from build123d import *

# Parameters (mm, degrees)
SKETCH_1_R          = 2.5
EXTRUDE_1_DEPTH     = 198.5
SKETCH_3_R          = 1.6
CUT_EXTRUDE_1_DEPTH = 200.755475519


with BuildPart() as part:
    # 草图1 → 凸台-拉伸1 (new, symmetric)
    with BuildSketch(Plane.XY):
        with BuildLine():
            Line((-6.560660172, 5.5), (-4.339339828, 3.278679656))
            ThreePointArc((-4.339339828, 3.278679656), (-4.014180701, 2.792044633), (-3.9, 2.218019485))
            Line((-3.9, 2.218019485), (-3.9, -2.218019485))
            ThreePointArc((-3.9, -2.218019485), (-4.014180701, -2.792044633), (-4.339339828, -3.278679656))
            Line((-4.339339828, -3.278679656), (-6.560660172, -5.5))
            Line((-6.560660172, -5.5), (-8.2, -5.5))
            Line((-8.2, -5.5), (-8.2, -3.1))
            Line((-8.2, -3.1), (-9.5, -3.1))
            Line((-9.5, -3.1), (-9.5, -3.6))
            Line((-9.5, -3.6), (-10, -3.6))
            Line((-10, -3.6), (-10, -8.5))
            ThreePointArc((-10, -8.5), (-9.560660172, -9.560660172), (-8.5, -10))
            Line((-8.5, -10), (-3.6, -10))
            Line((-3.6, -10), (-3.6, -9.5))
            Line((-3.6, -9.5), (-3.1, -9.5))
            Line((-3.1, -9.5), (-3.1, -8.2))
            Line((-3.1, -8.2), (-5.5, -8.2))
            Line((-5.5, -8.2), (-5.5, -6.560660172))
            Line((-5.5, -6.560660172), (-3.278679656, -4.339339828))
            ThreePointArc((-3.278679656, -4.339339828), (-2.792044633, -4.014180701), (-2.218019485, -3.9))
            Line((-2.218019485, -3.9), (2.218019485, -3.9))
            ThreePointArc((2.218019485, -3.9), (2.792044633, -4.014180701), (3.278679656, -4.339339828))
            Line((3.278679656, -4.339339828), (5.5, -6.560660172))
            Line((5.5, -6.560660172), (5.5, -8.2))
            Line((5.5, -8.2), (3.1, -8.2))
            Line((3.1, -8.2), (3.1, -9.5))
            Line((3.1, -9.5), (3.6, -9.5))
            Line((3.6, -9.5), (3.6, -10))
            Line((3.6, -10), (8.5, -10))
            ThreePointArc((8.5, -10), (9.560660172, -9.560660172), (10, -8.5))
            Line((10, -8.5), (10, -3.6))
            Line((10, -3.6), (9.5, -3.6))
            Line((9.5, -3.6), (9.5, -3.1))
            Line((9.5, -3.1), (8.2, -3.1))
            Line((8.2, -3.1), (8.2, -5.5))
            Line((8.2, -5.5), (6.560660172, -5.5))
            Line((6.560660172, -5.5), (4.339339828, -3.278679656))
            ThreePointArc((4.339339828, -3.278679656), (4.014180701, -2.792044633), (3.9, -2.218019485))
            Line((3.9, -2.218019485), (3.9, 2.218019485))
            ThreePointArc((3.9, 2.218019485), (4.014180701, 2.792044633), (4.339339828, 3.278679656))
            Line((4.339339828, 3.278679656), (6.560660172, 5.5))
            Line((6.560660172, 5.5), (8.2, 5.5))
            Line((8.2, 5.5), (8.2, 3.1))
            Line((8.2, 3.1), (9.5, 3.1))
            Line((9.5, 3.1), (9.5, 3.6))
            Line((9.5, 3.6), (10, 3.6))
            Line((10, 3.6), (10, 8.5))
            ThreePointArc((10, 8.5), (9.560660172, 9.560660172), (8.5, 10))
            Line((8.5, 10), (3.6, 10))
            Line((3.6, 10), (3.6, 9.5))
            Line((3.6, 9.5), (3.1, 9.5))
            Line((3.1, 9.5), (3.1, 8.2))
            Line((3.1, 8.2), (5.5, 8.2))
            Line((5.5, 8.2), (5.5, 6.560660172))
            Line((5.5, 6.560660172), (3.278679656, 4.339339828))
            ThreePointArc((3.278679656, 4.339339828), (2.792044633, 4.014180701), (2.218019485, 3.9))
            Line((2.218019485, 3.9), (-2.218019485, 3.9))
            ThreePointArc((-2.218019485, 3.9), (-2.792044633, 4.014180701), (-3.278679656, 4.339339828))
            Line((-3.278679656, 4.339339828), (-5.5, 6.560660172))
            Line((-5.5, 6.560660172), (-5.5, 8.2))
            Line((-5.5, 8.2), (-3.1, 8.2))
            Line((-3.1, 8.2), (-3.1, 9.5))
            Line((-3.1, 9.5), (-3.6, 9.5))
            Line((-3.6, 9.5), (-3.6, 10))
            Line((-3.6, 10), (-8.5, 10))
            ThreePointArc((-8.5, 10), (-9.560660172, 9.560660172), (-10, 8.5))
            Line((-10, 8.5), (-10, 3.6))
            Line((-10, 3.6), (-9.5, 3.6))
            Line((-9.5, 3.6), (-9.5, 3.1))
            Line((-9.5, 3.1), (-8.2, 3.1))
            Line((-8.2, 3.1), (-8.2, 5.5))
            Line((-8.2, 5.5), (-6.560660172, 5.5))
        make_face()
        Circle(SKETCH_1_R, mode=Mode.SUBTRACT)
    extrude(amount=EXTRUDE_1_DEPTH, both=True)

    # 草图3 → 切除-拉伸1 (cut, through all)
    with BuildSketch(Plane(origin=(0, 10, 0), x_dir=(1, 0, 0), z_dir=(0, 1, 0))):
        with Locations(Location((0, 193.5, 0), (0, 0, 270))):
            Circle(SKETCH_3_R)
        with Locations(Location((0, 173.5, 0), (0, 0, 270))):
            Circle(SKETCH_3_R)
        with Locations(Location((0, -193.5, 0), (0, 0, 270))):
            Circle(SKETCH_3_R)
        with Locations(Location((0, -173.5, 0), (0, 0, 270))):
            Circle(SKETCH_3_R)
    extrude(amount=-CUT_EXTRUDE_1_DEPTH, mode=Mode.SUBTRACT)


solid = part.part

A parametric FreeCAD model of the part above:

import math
import FreeCAD as App
import Part
import Sketcher

V = App.Vector

doc = App.newDocument("Part")
body = doc.addObject("PartDesign::Body", "Body")

sketch1 = body.newObject("Sketcher::SketchObject", "Sketch")
sketch1.AttachmentSupport = (doc.getObject("XY_Plane"), [""])
sketch1.MapMode = "FlatFace"
sketch1.addGeometry(Part.LineSegment(V(-6.6, 5.5, 0), V(-4.3, 3.3, 0)), False)
sketch1.addGeometry(Part.ArcOfCircle(Part.Circle(V(-5.4, 2.2, 0), V(0, 0, 1), 1.5), math.radians(0), math.radians(45)), False)
sketch1.addGeometry(Part.LineSegment(V(-3.9, 2.2, 0), V(-3.9, -2.2, 0)), False)
sketch1.addGeometry(Part.ArcOfCircle(Part.Circle(V(-5.4, -2.2, 0), V(0, 0, 1), 1.5), math.radians(-45), math.radians(0)), False)
sketch1.addGeometry(Part.LineSegment(V(-4.3, -3.3, 0), V(-6.6, -5.5, 0)), False)
sketch1.addGeometry(Part.LineSegment(V(-6.6, -5.5, 0), V(-8.2, -5.5, 0)), False)
sketch1.addGeometry(Part.LineSegment(V(-8.2, -5.5, 0), V(-8.2, -3.1, 0)), False)
sketch1.addGeometry(Part.LineSegment(V(-8.2, -3.1, 0), V(-9.5, -3.1, 0)), False)
sketch1.addGeometry(Part.LineSegment(V(-9.5, -3.1, 0), V(-9.5, -3.6, 0)), False)
sketch1.addGeometry(Part.LineSegment(V(-9.5, -3.6, 0), V(-10, -3.6, 0)), False)
sketch1.addGeometry(Part.LineSegment(V(-10, -3.6, 0), V(-10, -8.5, 0)), False)
sketch1.addGeometry(Part.ArcOfCircle(Part.Circle(V(-8.5, -8.5, 0), V(0, 0, 1), 1.5), math.radians(180), math.radians(270)), False)
sketch1.addGeometry(Part.LineSegment(V(-8.5, -10, 0), V(-3.6, -10, 0)), False)
sketch1.addGeometry(Part.LineSegment(V(-3.6, -10, 0), V(-3.6, -9.5, 0)), False)
sketch1.addGeometry(Part.LineSegment(V(-3.6, -9.5, 0), V(-3.1, -9.5, 0)), False)
sketch1.addGeometry(Part.LineSegment(V(-3.1, -9.5, 0), V(-3.1, -8.2, 0)), False)
sketch1.addGeometry(Part.LineSegment(V(-3.1, -8.2, 0), V(-5.5, -8.2, 0)), False)
sketch1.addGeometry(Part.LineSegment(V(-5.5, -8.2, 0), V(-5.5, -6.6, 0)), False)
sketch1.addGeometry(Part.LineSegment(V(-5.5, -6.6, 0), V(-3.3, -4.3, 0)), False)
sketch1.addGeometry(Part.ArcOfCircle(Part.Circle(V(-2.2, -5.4, 0), V(0, 0, 1), 1.5), math.radians(90), math.radians(135)), False)
sketch1.addGeometry(Part.LineSegment(V(-2.2, -3.9, 0), V(2.2, -3.9, 0)), False)
sketch1.addGeometry(Part.ArcOfCircle(Part.Circle(V(2.2, -5.4, 0), V(0, 0, 1), 1.5), math.radians(45), math.radians(90)), False)
sketch1.addGeometry(Part.LineSegment(V(3.3, -4.3, 0), V(5.5, -6.6, 0)), False)
sketch1.addGeometry(Part.LineSegment(V(5.5, -6.6, 0), V(5.5, -8.2, 0)), False)
sketch1.addGeometry(Part.LineSegment(V(5.5, -8.2, 0), V(3.1, -8.2, 0)), False)
sketch1.addGeometry(Part.LineSegment(V(3.1, -8.2, 0), V(3.1, -9.5, 0)), False)
sketch1.addGeometry(Part.LineSegment(V(3.1, -9.5, 0), V(3.6, -9.5, 0)), False)
sketch1.addGeometry(Part.LineSegment(V(3.6, -9.5, 0), V(3.6, -10, 0)), False)
sketch1.addGeometry(Part.LineSegment(V(3.6, -10, 0), V(8.5, -10, 0)), False)
sketch1.addGeometry(Part.ArcOfCircle(Part.Circle(V(8.5, -8.5, 0), V(0, 0, 1), 1.5), math.radians(-90), math.radians(0)), False)
sketch1.addGeometry(Part.LineSegment(V(10, -8.5, 0), V(10, -3.6, 0)), False)
sketch1.addGeometry(Part.LineSegment(V(10, -3.6, 0), V(9.5, -3.6, 0)), False)
sketch1.addGeometry(Part.LineSegment(V(9.5, -3.6, 0), V(9.5, -3.1, 0)), False)
sketch1.addGeometry(Part.LineSegment(V(9.5, -3.1, 0), V(8.2, -3.1, 0)), False)
sketch1.addGeometry(Part.LineSegment(V(8.2, -3.1, 0), V(8.2, -5.5, 0)), False)
sketch1.addGeometry(Part.LineSegment(V(8.2, -5.5, 0), V(6.6, -5.5, 0)), False)
sketch1.addGeometry(Part.LineSegment(V(6.6, -5.5, 0), V(4.3, -3.3, 0)), False)
sketch1.addGeometry(Part.ArcOfCircle(Part.Circle(V(5.4, -2.2, 0), V(0, 0, 1), 1.5), math.radians(180), math.radians(225)), False)
sketch1.addGeometry(Part.LineSegment(V(3.9, -2.2, 0), V(3.9, 2.2, 0)), False)
sketch1.addGeometry(Part.ArcOfCircle(Part.Circle(V(5.4, 2.2, 0), V(0, 0, 1), 1.5), math.radians(135), math.radians(180)), False)
sketch1.addGeometry(Part.LineSegment(V(4.3, 3.3, 0), V(6.6, 5.5, 0)), False)
sketch1.addGeometry(Part.LineSegment(V(6.6, 5.5, 0), V(8.2, 5.5, 0)), False)
sketch1.addGeometry(Part.LineSegment(V(8.2, 5.5, 0), V(8.2, 3.1, 0)), False)
sketch1.addGeometry(Part.LineSegment(V(8.2, 3.1, 0), V(9.5, 3.1, 0)), False)
sketch1.addGeometry(Part.LineSegment(V(9.5, 3.1, 0), V(9.5, 3.6, 0)), False)
sketch1.addGeometry(Part.LineSegment(V(9.5, 3.6, 0), V(10, 3.6, 0)), False)
sketch1.addGeometry(Part.LineSegment(V(10, 3.6, 0), V(10, 8.5, 0)), False)
sketch1.addGeometry(Part.ArcOfCircle(Part.Circle(V(8.5, 8.5, 0), V(0, 0, 1), 1.5), math.radians(0), math.radians(90)), False)
sketch1.addGeometry(Part.LineSegment(V(8.5, 10, 0), V(3.6, 10, 0)), False)
sketch1.addGeometry(Part.LineSegment(V(3.6, 10, 0), V(3.6, 9.5, 0)), False)
sketch1.addGeometry(Part.LineSegment(V(3.6, 9.5, 0), V(3.1, 9.5, 0)), False)
sketch1.addGeometry(Part.LineSegment(V(3.1, 9.5, 0), V(3.1, 8.2, 0)), False)
sketch1.addGeometry(Part.LineSegment(V(3.1, 8.2, 0), V(5.5, 8.2, 0)), False)
sketch1.addGeometry(Part.LineSegment(V(5.5, 8.2, 0), V(5.5, 6.6, 0)), False)
sketch1.addGeometry(Part.LineSegment(V(5.5, 6.6, 0), V(3.3, 4.3, 0)), False)
sketch1.addGeometry(Part.ArcOfCircle(Part.Circle(V(2.2, 5.4, 0), V(0, 0, 1), 1.5), math.radians(-90), math.radians(-45)), False)
sketch1.addGeometry(Part.LineSegment(V(2.2, 3.9, 0), V(-2.2, 3.9, 0)), False)
sketch1.addGeometry(Part.ArcOfCircle(Part.Circle(V(-2.2, 5.4, 0), V(0, 0, 1), 1.5), math.radians(-135), math.radians(-90)), False)
sketch1.addGeometry(Part.LineSegment(V(-3.3, 4.3, 0), V(-5.5, 6.6, 0)), False)
sketch1.addGeometry(Part.LineSegment(V(-5.5, 6.6, 0), V(-5.5, 8.2, 0)), False)
sketch1.addGeometry(Part.LineSegment(V(-5.5, 8.2, 0), V(-3.1, 8.2, 0)), False)
sketch1.addGeometry(Part.LineSegment(V(-3.1, 8.2, 0), V(-3.1, 9.5, 0)), False)
sketch1.addGeometry(Part.LineSegment(V(-3.1, 9.5, 0), V(-3.6, 9.5, 0)), False)
sketch1.addGeometry(Part.LineSegment(V(-3.6, 9.5, 0), V(-3.6, 10, 0)), False)
sketch1.addGeometry(Part.LineSegment(V(-3.6, 10, 0), V(-8.5, 10, 0)), False)
sketch1.addGeometry(Part.ArcOfCircle(Part.Circle(V(-8.5, 8.5, 0), V(0, 0, 1), 1.5), math.radians(90), math.radians(180)), False)
sketch1.addGeometry(Part.LineSegment(V(-10, 8.5, 0), V(-10, 3.6, 0)), False)
sketch1.addGeometry(Part.LineSegment(V(-10, 3.6, 0), V(-9.5, 3.6, 0)), False)
sketch1.addGeometry(Part.LineSegment(V(-9.5, 3.6, 0), V(-9.5, 3.1, 0)), False)
sketch1.addGeometry(Part.LineSegment(V(-9.5, 3.1, 0), V(-8.2, 3.1, 0)), False)
sketch1.addGeometry(Part.LineSegment(V(-8.2, 3.1, 0), V(-8.2, 5.5, 0)), False)
sketch1.addGeometry(Part.LineSegment(V(-8.2, 5.5, 0), V(-6.6, 5.5, 0)), False)
sketch1.addGeometry(Part.Circle(V(0, 0, 0), V(0, 0, 1), 2.5), False)
sketch1.addConstraint(Sketcher.Constraint("Tangent", 0, 2, 1, 2))
sketch1.addConstraint(Sketcher.Constraint("Tangent", 1, 1, 2, 1))
sketch1.addConstraint(Sketcher.Constraint("Tangent", 2, 2, 3, 2))
sketch1.addConstraint(Sketcher.Constraint("Tangent", 3, 1, 4, 1))
sketch1.addConstraint(Sketcher.Constraint("Coincident", 4, 2, 5, 1))
sketch1.addConstraint(Sketcher.Constraint("Coincident", 5, 2, 6, 1))
sketch1.addConstraint(Sketcher.Constraint("Coincident", 6, 2, 7, 1))
sketch1.addConstraint(Sketcher.Constraint("Coincident", 7, 2, 8, 1))
sketch1.addConstraint(Sketcher.Constraint("Coincident", 8, 2, 9, 1))
sketch1.addConstraint(Sketcher.Constraint("Coincident", 9, 2, 10, 1))
sketch1.addConstraint(Sketcher.Constraint("Tangent", 10, 2, 11, 1))
sketch1.addConstraint(Sketcher.Constraint("Tangent", 11, 2, 12, 1))
sketch1.addConstraint(Sketcher.Constraint("Coincident", 12, 2, 13, 1))
sketch1.addConstraint(Sketcher.Constraint("Coincident", 13, 2, 14, 1))
sketch1.addConstraint(Sketcher.Constraint("Coincident", 14, 2, 15, 1))
sketch1.addConstraint(Sketcher.Constraint("Coincident", 15, 2, 16, 1))
sketch1.addConstraint(Sketcher.Constraint("Coincident", 16, 2, 17, 1))
sketch1.addConstraint(Sketcher.Constraint("Coincident", 17, 2, 18, 1))
sketch1.addConstraint(Sketcher.Constraint("Tangent", 18, 2, 19, 2))
sketch1.addConstraint(Sketcher.Constraint("Tangent", 19, 1, 20, 1))
sketch1.addConstraint(Sketcher.Constraint("Tangent", 20, 2, 21, 2))
sketch1.addConstraint(Sketcher.Constraint("Tangent", 21, 1, 22, 1))
sketch1.addConstraint(Sketcher.Constraint("Coincident", 22, 2, 23, 1))
sketch1.addConstraint(Sketcher.Constraint("Coincident", 23, 2, 24, 1))
sketch1.addConstraint(Sketcher.Constraint("Coincident", 24, 2, 25, 1))
sketch1.addConstraint(Sketcher.Constraint("Coincident", 25, 2, 26, 1))
sketch1.addConstraint(Sketcher.Constraint("Coincident", 26, 2, 27, 1))
sketch1.addConstraint(Sketcher.Constraint("Coincident", 27, 2, 28, 1))
sketch1.addConstraint(Sketcher.Constraint("Tangent", 28, 2, 29, 1))
sketch1.addConstraint(Sketcher.Constraint("Tangent", 29, 2, 30, 1))
sketch1.addConstraint(Sketcher.Constraint("Coincident", 30, 2, 31, 1))
sketch1.addConstraint(Sketcher.Constraint("Coincident", 31, 2, 32, 1))
sketch1.addConstraint(Sketcher.Constraint("Coincident", 32, 2, 33, 1))
sketch1.addConstraint(Sketcher.Constraint("Coincident", 33, 2, 34, 1))
sketch1.addConstraint(Sketcher.Constraint("Coincident", 34, 2, 35, 1))
sketch1.addConstraint(Sketcher.Constraint("Coincident", 35, 2, 36, 1))
sketch1.addConstraint(Sketcher.Constraint("Tangent", 36, 2, 37, 2))
sketch1.addConstraint(Sketcher.Constraint("Tangent", 37, 1, 38, 1))
sketch1.addConstraint(Sketcher.Constraint("Tangent", 38, 2, 39, 2))
sketch1.addConstraint(Sketcher.Constraint("Tangent", 39, 1, 40, 1))
sketch1.addConstraint(Sketcher.Constraint("Coincident", 40, 2, 41, 1))
sketch1.addConstraint(Sketcher.Constraint("Coincident", 41, 2, 42, 1))
sketch1.addConstraint(Sketcher.Constraint("Coincident", 42, 2, 43, 1))
sketch1.addConstraint(Sketcher.Constraint("Coincident", 43, 2, 44, 1))
sketch1.addConstraint(Sketcher.Constraint("Coincident", 44, 2, 45, 1))
sketch1.addConstraint(Sketcher.Constraint("Coincident", 45, 2, 46, 1))
sketch1.addConstraint(Sketcher.Constraint("Tangent", 46, 2, 47, 1))
sketch1.addConstraint(Sketcher.Constraint("Tangent", 47, 2, 48, 1))
sketch1.addConstraint(Sketcher.Constraint("Coincident", 48, 2, 49, 1))
sketch1.addConstraint(Sketcher.Constraint("Coincident", 49, 2, 50, 1))
sketch1.addConstraint(Sketcher.Constraint("Coincident", 50, 2, 51, 1))
sketch1.addConstraint(Sketcher.Constraint("Coincident", 51, 2, 52, 1))
sketch1.addConstraint(Sketcher.Constraint("Coincident", 52, 2, 53, 1))
sketch1.addConstraint(Sketcher.Constraint("Coincident", 53, 2, 54, 1))
sketch1.addConstraint(Sketcher.Constraint("Tangent", 54, 2, 55, 2))
sketch1.addConstraint(Sketcher.Constraint("Tangent", 55, 1, 56, 1))
sketch1.addConstraint(Sketcher.Constraint("Tangent", 56, 2, 57, 2))
sketch1.addConstraint(Sketcher.Constraint("Tangent", 57, 1, 58, 1))
sketch1.addConstraint(Sketcher.Constraint("Coincident", 58, 2, 59, 1))
sketch1.addConstraint(Sketcher.Constraint("Coincident", 59, 2, 60, 1))
sketch1.addConstraint(Sketcher.Constraint("Coincident", 60, 2, 61, 1))
sketch1.addConstraint(Sketcher.Constraint("Coincident", 61, 2, 62, 1))
sketch1.addConstraint(Sketcher.Constraint("Coincident", 62, 2, 63, 1))
sketch1.addConstraint(Sketcher.Constraint("Coincident", 63, 2, 64, 1))
sketch1.addConstraint(Sketcher.Constraint("Tangent", 64, 2, 65, 1))
sketch1.addConstraint(Sketcher.Constraint("Tangent", 65, 2, 66, 1))
sketch1.addConstraint(Sketcher.Constraint("Coincident", 66, 2, 67, 1))
sketch1.addConstraint(Sketcher.Constraint("Coincident", 67, 2, 68, 1))
sketch1.addConstraint(Sketcher.Constraint("Coincident", 68, 2, 69, 1))
sketch1.addConstraint(Sketcher.Constraint("Coincident", 69, 2, 70, 1))
sketch1.addConstraint(Sketcher.Constraint("Coincident", 70, 2, 71, 1))
sketch1.addConstraint(Sketcher.Constraint("Coincident", 71, 2, 0, 1))
sketch1.addConstraint(Sketcher.Constraint("Vertical", 2))
sketch1.addConstraint(Sketcher.Constraint("Horizontal", 5))
sketch1.addConstraint(Sketcher.Constraint("Vertical", 6))
sketch1.addConstraint(Sketcher.Constraint("Horizontal", 7))
sketch1.addConstraint(Sketcher.Constraint("Vertical", 8))
sketch1.addConstraint(Sketcher.Constraint("Horizontal", 9))
sketch1.addConstraint(Sketcher.Constraint("Vertical", 10))
sketch1.addConstraint(Sketcher.Constraint("Horizontal", 12))
sketch1.addConstraint(Sketcher.Constraint("Vertical", 13))
sketch1.addConstraint(Sketcher.Constraint("Horizontal", 14))
sketch1.addConstraint(Sketcher.Constraint("Vertical", 15))
sketch1.addConstraint(Sketcher.Constraint("Horizontal", 16))
sketch1.addConstraint(Sketcher.Constraint("Vertical", 17))
sketch1.addConstraint(Sketcher.Constraint("Horizontal", 20))
sketch1.addConstraint(Sketcher.Constraint("Vertical", 23))
sketch1.addConstraint(Sketcher.Constraint("Horizontal", 24))
sketch1.addConstraint(Sketcher.Constraint("Vertical", 25))
sketch1.addConstraint(Sketcher.Constraint("Horizontal", 26))
sketch1.addConstraint(Sketcher.Constraint("Vertical", 27))
sketch1.addConstraint(Sketcher.Constraint("Horizontal", 28))
sketch1.addConstraint(Sketcher.Constraint("Vertical", 30))
sketch1.addConstraint(Sketcher.Constraint("Horizontal", 31))
sketch1.addConstraint(Sketcher.Constraint("Vertical", 32))
sketch1.addConstraint(Sketcher.Constraint("Horizontal", 33))
sketch1.addConstraint(Sketcher.Constraint("Vertical", 34))
sketch1.addConstraint(Sketcher.Constraint("Horizontal", 35))
sketch1.addConstraint(Sketcher.Constraint("Vertical", 38))
sketch1.addConstraint(Sketcher.Constraint("Horizontal", 41))
sketch1.addConstraint(Sketcher.Constraint("Vertical", 42))
sketch1.addConstraint(Sketcher.Constraint("Horizontal", 43))
sketch1.addConstraint(Sketcher.Constraint("Vertical", 44))
sketch1.addConstraint(Sketcher.Constraint("Horizontal", 45))
sketch1.addConstraint(Sketcher.Constraint("Vertical", 46))
sketch1.addConstraint(Sketcher.Constraint("Horizontal", 48))
sketch1.addConstraint(Sketcher.Constraint("Vertical", 49))
sketch1.addConstraint(Sketcher.Constraint("Horizontal", 50))
sketch1.addConstraint(Sketcher.Constraint("Vertical", 51))
sketch1.addConstraint(Sketcher.Constraint("Horizontal", 52))
sketch1.addConstraint(Sketcher.Constraint("Vertical", 53))
sketch1.addConstraint(Sketcher.Constraint("Horizontal", 56))
sketch1.addConstraint(Sketcher.Constraint("Vertical", 59))
sketch1.addConstraint(Sketcher.Constraint("Horizontal", 60))
sketch1.addConstraint(Sketcher.Constraint("Vertical", 61))
sketch1.addConstraint(Sketcher.Constraint("Horizontal", 62))
sketch1.addConstraint(Sketcher.Constraint("Vertical", 63))
sketch1.addConstraint(Sketcher.Constraint("Horizontal", 64))
sketch1.addConstraint(Sketcher.Constraint("Vertical", 66))
sketch1.addConstraint(Sketcher.Constraint("Horizontal", 67))
sketch1.addConstraint(Sketcher.Constraint("Vertical", 68))
sketch1.addConstraint(Sketcher.Constraint("Horizontal", 69))
sketch1.addConstraint(Sketcher.Constraint("Vertical", 70))
sketch1.addConstraint(Sketcher.Constraint("Horizontal", 71))
sketch1.addConstraint(Sketcher.Constraint("Coincident", 72, 3, -1, 1))
sketch1.addConstraint(Sketcher.Constraint("Equal", 1, 3))
sketch1.addConstraint(Sketcher.Constraint("Equal", 3, 11))
sketch1.addConstraint(Sketcher.Constraint("Equal", 11, 19))
sketch1.addConstraint(Sketcher.Constraint("Equal", 19, 21))
sketch1.addConstraint(Sketcher.Constraint("Equal", 21, 29))
sketch1.addConstraint(Sketcher.Constraint("Equal", 29, 37))
sketch1.addConstraint(Sketcher.Constraint("Equal", 37, 39))
sketch1.addConstraint(Sketcher.Constraint("Equal", 39, 47))
sketch1.addConstraint(Sketcher.Constraint("Equal", 47, 55))
sketch1.addConstraint(Sketcher.Constraint("Equal", 55, 57))
sketch1.addConstraint(Sketcher.Constraint("Equal", 57, 65))
sketch1.addConstraint(Sketcher.Constraint("Symmetric", 1, 3, 37, 3, -1, 1))
sketch1.addConstraint(Sketcher.Constraint("Symmetric", 11, 3, 47, 3, -1, 1))
sketch1.addConstraint(Sketcher.Constraint("Symmetric", 19, 3, 55, 3, -1, 1))
sketch1.addConstraint(Sketcher.Constraint("Symmetric", 29, 3, 65, 3, -1, 1))
sketch1.addConstraint(Sketcher.Constraint("Symmetric", 3, 1, 39, 1, -1, 1))
sketch1.addConstraint(Sketcher.Constraint("Symmetric", 5, 2, 41, 2, -1, 1))
sketch1.addConstraint(Sketcher.Constraint("Symmetric", 7, 2, 43, 2, -1, 1))
sketch1.addConstraint(Sketcher.Constraint("Symmetric", 13, 2, 49, 2, -1, 1))
sketch1.addConstraint(Sketcher.Constraint("Symmetric", 15, 2, 51, 2, -1, 1))
sketch1.addConstraint(Sketcher.Constraint("Symmetric", 17, 2, 53, 2, -1, 1))
sketch1.addConstraint(Sketcher.Constraint("Symmetric", 21, 1, 57, 1, -1, 1))
sketch1.addConstraint(Sketcher.Constraint("Symmetric", 23, 2, 59, 2, -1, 1))
sketch1.addConstraint(Sketcher.Constraint("Symmetric", 25, 2, 61, 2, -1, 1))
sketch1.addConstraint(Sketcher.Constraint("Symmetric", 31, 2, 67, 2, -1, 1))
sketch1.addConstraint(Sketcher.Constraint("Symmetric", 33, 2, 69, 2, -1, 1))
sketch1.addConstraint(Sketcher.Constraint("Symmetric", 35, 2, 71, 2, -1, 1))
sketch1.addConstraint(Sketcher.Constraint("Symmetric", 11, 3, 29, 3, -2))
sketch1.addConstraint(Sketcher.Constraint("Symmetric", 18, 2, 21, 1, -2))
sketch1.addConstraint(Sketcher.Constraint("Symmetric", 16, 2, 23, 2, -2))
sketch1.addConstraint(Sketcher.Constraint("Symmetric", 14, 2, 25, 2, -2))
sketch1.addConstraint(Sketcher.Constraint("Symmetric", 8, 2, 31, 2, -2))
sketch1.addConstraint(Sketcher.Constraint("Symmetric", 6, 2, 33, 2, -2))
sketch1.addConstraint(Sketcher.Constraint("Symmetric", 4, 2, 35, 2, -2))
sketch1.addConstraint(Sketcher.Constraint("Perpendicular", 0, 4))
sketch1.addConstraint(Sketcher.Constraint("Parallel", 4, 18))
sketch1.addConstraint(Sketcher.Constraint("Perpendicular", 18, 22))
sketch1.addConstraint(Sketcher.Constraint("Horizontal", 45, 2, 66, 2))
sketch1.addConstraint(Sketcher.Constraint("Vertical", 27, 2, 48, 2))
sketch1.addConstraint(Sketcher.Constraint("Vertical", 13, 2, 62, 2))
sketch1.addConstraint(Sketcher.Constraint("Equal", 9, 14))
sketch1.addConstraint(Sketcher.Constraint("Equal", 56, 2))
sketch1.addConstraint(Sketcher.Constraint("Equal", 60, 6))
sketch1.addConstraint(Sketcher.Constraint("Equal", 67, 8))
sketch1.addConstraint(Sketcher.Constraint("Equal", 64, 10))
sketch1.addConstraint(Sketcher.Constraint("Equal", 8, 13))
sketch1.addConstraint(Sketcher.Constraint("Equal", 69, 15))
sketch1.addConstraint(Sketcher.Constraint("Equal", 71, 17))
sketch1.addConstraint(Sketcher.Constraint("Equal", 4, 18))
sketch1.addConstraint(Sketcher.Constraint("Diameter", 72, 5.0))
sketch1.addConstraint(Sketcher.Constraint("Radius", 1, 1.5))
sketch1.addConstraint(Sketcher.Constraint("DistanceX", 7, 2, 7, 1, 1.3))
sketch1.addConstraint(Sketcher.Constraint("DistanceX", 9, 2, 9, 1, 0.5))
sketch1.addConstraint(Sketcher.Constraint("DistanceX", 12, 1, 12, 2, 4.9))
sketch1.addConstraint(Sketcher.Constraint("DistanceX", 16, 2, 16, 1, 2.4))
sketch1.addConstraint(Sketcher.Constraint("DistanceX", 9, 2, -1, 1, 10.0))
sketch1.addConstraint(Sketcher.Constraint("DistanceX", 1, 3, -1, 1, 5.4))
sketch1.addConstraint(Sketcher.Constraint("DistanceX", 5, 2, 5, 1, 1.63934))
pad1 = body.newObject("PartDesign::Pad", "Pad")
pad1.Profile = sketch1
pad1.Length = 397
pad1.Midplane = True

sketch2 = body.newObject("Sketcher::SketchObject", "Sketch001")
sketch2.AttachmentSupport = (doc.getObject("XZ_Plane"), [""])
sketch2.MapMode = "FlatFace"
sketch2.AttachmentOffset = App.Placement(V(0, 0, -10), App.Rotation())
sketch2.addGeometry(Part.Circle(V(0, -193.5, 0), V(0, 0, 1), 1.6), False)
sketch2.addGeometry(Part.Circle(V(0, -173.5, 0), V(0, 0, 1), 1.6), False)
sketch2.addGeometry(Part.Circle(V(0, 193.5, 0), V(0, 0, 1), 1.6), False)
sketch2.addGeometry(Part.Circle(V(0, 173.5, 0), V(0, 0, 1), 1.6), False)
sketch2.addConstraint(Sketcher.Constraint("Equal", 0, 1))
sketch2.addConstraint(Sketcher.Constraint("Equal", 1, 2))
sketch2.addConstraint(Sketcher.Constraint("Equal", 2, 3))
sketch2.addConstraint(Sketcher.Constraint("Symmetric", 0, 3, 2, 3, -1, 1))
sketch2.addConstraint(Sketcher.Constraint("Symmetric", 1, 3, 3, 3, -1, 1))
sketch2.addConstraint(Sketcher.Constraint("PointOnObject", 0, 3, -2))
sketch2.addConstraint(Sketcher.Constraint("PointOnObject", 1, 3, -2))
sketch2.addConstraint(Sketcher.Constraint("Diameter", 0, 3.2))
sketch2.addConstraint(Sketcher.Constraint("DistanceY", 0, 3, 1, 3, 20.0))
sketch2.addConstraint(Sketcher.Constraint("DistanceY", 1, 3, 2, 3, 367.0))
pocket1 = body.newObject("PartDesign::Pocket", "Pocket")
pocket1.Profile = sketch2
pocket1.Type = "ThroughAll"
pocket1.Reversed = True

doc.recompute()
